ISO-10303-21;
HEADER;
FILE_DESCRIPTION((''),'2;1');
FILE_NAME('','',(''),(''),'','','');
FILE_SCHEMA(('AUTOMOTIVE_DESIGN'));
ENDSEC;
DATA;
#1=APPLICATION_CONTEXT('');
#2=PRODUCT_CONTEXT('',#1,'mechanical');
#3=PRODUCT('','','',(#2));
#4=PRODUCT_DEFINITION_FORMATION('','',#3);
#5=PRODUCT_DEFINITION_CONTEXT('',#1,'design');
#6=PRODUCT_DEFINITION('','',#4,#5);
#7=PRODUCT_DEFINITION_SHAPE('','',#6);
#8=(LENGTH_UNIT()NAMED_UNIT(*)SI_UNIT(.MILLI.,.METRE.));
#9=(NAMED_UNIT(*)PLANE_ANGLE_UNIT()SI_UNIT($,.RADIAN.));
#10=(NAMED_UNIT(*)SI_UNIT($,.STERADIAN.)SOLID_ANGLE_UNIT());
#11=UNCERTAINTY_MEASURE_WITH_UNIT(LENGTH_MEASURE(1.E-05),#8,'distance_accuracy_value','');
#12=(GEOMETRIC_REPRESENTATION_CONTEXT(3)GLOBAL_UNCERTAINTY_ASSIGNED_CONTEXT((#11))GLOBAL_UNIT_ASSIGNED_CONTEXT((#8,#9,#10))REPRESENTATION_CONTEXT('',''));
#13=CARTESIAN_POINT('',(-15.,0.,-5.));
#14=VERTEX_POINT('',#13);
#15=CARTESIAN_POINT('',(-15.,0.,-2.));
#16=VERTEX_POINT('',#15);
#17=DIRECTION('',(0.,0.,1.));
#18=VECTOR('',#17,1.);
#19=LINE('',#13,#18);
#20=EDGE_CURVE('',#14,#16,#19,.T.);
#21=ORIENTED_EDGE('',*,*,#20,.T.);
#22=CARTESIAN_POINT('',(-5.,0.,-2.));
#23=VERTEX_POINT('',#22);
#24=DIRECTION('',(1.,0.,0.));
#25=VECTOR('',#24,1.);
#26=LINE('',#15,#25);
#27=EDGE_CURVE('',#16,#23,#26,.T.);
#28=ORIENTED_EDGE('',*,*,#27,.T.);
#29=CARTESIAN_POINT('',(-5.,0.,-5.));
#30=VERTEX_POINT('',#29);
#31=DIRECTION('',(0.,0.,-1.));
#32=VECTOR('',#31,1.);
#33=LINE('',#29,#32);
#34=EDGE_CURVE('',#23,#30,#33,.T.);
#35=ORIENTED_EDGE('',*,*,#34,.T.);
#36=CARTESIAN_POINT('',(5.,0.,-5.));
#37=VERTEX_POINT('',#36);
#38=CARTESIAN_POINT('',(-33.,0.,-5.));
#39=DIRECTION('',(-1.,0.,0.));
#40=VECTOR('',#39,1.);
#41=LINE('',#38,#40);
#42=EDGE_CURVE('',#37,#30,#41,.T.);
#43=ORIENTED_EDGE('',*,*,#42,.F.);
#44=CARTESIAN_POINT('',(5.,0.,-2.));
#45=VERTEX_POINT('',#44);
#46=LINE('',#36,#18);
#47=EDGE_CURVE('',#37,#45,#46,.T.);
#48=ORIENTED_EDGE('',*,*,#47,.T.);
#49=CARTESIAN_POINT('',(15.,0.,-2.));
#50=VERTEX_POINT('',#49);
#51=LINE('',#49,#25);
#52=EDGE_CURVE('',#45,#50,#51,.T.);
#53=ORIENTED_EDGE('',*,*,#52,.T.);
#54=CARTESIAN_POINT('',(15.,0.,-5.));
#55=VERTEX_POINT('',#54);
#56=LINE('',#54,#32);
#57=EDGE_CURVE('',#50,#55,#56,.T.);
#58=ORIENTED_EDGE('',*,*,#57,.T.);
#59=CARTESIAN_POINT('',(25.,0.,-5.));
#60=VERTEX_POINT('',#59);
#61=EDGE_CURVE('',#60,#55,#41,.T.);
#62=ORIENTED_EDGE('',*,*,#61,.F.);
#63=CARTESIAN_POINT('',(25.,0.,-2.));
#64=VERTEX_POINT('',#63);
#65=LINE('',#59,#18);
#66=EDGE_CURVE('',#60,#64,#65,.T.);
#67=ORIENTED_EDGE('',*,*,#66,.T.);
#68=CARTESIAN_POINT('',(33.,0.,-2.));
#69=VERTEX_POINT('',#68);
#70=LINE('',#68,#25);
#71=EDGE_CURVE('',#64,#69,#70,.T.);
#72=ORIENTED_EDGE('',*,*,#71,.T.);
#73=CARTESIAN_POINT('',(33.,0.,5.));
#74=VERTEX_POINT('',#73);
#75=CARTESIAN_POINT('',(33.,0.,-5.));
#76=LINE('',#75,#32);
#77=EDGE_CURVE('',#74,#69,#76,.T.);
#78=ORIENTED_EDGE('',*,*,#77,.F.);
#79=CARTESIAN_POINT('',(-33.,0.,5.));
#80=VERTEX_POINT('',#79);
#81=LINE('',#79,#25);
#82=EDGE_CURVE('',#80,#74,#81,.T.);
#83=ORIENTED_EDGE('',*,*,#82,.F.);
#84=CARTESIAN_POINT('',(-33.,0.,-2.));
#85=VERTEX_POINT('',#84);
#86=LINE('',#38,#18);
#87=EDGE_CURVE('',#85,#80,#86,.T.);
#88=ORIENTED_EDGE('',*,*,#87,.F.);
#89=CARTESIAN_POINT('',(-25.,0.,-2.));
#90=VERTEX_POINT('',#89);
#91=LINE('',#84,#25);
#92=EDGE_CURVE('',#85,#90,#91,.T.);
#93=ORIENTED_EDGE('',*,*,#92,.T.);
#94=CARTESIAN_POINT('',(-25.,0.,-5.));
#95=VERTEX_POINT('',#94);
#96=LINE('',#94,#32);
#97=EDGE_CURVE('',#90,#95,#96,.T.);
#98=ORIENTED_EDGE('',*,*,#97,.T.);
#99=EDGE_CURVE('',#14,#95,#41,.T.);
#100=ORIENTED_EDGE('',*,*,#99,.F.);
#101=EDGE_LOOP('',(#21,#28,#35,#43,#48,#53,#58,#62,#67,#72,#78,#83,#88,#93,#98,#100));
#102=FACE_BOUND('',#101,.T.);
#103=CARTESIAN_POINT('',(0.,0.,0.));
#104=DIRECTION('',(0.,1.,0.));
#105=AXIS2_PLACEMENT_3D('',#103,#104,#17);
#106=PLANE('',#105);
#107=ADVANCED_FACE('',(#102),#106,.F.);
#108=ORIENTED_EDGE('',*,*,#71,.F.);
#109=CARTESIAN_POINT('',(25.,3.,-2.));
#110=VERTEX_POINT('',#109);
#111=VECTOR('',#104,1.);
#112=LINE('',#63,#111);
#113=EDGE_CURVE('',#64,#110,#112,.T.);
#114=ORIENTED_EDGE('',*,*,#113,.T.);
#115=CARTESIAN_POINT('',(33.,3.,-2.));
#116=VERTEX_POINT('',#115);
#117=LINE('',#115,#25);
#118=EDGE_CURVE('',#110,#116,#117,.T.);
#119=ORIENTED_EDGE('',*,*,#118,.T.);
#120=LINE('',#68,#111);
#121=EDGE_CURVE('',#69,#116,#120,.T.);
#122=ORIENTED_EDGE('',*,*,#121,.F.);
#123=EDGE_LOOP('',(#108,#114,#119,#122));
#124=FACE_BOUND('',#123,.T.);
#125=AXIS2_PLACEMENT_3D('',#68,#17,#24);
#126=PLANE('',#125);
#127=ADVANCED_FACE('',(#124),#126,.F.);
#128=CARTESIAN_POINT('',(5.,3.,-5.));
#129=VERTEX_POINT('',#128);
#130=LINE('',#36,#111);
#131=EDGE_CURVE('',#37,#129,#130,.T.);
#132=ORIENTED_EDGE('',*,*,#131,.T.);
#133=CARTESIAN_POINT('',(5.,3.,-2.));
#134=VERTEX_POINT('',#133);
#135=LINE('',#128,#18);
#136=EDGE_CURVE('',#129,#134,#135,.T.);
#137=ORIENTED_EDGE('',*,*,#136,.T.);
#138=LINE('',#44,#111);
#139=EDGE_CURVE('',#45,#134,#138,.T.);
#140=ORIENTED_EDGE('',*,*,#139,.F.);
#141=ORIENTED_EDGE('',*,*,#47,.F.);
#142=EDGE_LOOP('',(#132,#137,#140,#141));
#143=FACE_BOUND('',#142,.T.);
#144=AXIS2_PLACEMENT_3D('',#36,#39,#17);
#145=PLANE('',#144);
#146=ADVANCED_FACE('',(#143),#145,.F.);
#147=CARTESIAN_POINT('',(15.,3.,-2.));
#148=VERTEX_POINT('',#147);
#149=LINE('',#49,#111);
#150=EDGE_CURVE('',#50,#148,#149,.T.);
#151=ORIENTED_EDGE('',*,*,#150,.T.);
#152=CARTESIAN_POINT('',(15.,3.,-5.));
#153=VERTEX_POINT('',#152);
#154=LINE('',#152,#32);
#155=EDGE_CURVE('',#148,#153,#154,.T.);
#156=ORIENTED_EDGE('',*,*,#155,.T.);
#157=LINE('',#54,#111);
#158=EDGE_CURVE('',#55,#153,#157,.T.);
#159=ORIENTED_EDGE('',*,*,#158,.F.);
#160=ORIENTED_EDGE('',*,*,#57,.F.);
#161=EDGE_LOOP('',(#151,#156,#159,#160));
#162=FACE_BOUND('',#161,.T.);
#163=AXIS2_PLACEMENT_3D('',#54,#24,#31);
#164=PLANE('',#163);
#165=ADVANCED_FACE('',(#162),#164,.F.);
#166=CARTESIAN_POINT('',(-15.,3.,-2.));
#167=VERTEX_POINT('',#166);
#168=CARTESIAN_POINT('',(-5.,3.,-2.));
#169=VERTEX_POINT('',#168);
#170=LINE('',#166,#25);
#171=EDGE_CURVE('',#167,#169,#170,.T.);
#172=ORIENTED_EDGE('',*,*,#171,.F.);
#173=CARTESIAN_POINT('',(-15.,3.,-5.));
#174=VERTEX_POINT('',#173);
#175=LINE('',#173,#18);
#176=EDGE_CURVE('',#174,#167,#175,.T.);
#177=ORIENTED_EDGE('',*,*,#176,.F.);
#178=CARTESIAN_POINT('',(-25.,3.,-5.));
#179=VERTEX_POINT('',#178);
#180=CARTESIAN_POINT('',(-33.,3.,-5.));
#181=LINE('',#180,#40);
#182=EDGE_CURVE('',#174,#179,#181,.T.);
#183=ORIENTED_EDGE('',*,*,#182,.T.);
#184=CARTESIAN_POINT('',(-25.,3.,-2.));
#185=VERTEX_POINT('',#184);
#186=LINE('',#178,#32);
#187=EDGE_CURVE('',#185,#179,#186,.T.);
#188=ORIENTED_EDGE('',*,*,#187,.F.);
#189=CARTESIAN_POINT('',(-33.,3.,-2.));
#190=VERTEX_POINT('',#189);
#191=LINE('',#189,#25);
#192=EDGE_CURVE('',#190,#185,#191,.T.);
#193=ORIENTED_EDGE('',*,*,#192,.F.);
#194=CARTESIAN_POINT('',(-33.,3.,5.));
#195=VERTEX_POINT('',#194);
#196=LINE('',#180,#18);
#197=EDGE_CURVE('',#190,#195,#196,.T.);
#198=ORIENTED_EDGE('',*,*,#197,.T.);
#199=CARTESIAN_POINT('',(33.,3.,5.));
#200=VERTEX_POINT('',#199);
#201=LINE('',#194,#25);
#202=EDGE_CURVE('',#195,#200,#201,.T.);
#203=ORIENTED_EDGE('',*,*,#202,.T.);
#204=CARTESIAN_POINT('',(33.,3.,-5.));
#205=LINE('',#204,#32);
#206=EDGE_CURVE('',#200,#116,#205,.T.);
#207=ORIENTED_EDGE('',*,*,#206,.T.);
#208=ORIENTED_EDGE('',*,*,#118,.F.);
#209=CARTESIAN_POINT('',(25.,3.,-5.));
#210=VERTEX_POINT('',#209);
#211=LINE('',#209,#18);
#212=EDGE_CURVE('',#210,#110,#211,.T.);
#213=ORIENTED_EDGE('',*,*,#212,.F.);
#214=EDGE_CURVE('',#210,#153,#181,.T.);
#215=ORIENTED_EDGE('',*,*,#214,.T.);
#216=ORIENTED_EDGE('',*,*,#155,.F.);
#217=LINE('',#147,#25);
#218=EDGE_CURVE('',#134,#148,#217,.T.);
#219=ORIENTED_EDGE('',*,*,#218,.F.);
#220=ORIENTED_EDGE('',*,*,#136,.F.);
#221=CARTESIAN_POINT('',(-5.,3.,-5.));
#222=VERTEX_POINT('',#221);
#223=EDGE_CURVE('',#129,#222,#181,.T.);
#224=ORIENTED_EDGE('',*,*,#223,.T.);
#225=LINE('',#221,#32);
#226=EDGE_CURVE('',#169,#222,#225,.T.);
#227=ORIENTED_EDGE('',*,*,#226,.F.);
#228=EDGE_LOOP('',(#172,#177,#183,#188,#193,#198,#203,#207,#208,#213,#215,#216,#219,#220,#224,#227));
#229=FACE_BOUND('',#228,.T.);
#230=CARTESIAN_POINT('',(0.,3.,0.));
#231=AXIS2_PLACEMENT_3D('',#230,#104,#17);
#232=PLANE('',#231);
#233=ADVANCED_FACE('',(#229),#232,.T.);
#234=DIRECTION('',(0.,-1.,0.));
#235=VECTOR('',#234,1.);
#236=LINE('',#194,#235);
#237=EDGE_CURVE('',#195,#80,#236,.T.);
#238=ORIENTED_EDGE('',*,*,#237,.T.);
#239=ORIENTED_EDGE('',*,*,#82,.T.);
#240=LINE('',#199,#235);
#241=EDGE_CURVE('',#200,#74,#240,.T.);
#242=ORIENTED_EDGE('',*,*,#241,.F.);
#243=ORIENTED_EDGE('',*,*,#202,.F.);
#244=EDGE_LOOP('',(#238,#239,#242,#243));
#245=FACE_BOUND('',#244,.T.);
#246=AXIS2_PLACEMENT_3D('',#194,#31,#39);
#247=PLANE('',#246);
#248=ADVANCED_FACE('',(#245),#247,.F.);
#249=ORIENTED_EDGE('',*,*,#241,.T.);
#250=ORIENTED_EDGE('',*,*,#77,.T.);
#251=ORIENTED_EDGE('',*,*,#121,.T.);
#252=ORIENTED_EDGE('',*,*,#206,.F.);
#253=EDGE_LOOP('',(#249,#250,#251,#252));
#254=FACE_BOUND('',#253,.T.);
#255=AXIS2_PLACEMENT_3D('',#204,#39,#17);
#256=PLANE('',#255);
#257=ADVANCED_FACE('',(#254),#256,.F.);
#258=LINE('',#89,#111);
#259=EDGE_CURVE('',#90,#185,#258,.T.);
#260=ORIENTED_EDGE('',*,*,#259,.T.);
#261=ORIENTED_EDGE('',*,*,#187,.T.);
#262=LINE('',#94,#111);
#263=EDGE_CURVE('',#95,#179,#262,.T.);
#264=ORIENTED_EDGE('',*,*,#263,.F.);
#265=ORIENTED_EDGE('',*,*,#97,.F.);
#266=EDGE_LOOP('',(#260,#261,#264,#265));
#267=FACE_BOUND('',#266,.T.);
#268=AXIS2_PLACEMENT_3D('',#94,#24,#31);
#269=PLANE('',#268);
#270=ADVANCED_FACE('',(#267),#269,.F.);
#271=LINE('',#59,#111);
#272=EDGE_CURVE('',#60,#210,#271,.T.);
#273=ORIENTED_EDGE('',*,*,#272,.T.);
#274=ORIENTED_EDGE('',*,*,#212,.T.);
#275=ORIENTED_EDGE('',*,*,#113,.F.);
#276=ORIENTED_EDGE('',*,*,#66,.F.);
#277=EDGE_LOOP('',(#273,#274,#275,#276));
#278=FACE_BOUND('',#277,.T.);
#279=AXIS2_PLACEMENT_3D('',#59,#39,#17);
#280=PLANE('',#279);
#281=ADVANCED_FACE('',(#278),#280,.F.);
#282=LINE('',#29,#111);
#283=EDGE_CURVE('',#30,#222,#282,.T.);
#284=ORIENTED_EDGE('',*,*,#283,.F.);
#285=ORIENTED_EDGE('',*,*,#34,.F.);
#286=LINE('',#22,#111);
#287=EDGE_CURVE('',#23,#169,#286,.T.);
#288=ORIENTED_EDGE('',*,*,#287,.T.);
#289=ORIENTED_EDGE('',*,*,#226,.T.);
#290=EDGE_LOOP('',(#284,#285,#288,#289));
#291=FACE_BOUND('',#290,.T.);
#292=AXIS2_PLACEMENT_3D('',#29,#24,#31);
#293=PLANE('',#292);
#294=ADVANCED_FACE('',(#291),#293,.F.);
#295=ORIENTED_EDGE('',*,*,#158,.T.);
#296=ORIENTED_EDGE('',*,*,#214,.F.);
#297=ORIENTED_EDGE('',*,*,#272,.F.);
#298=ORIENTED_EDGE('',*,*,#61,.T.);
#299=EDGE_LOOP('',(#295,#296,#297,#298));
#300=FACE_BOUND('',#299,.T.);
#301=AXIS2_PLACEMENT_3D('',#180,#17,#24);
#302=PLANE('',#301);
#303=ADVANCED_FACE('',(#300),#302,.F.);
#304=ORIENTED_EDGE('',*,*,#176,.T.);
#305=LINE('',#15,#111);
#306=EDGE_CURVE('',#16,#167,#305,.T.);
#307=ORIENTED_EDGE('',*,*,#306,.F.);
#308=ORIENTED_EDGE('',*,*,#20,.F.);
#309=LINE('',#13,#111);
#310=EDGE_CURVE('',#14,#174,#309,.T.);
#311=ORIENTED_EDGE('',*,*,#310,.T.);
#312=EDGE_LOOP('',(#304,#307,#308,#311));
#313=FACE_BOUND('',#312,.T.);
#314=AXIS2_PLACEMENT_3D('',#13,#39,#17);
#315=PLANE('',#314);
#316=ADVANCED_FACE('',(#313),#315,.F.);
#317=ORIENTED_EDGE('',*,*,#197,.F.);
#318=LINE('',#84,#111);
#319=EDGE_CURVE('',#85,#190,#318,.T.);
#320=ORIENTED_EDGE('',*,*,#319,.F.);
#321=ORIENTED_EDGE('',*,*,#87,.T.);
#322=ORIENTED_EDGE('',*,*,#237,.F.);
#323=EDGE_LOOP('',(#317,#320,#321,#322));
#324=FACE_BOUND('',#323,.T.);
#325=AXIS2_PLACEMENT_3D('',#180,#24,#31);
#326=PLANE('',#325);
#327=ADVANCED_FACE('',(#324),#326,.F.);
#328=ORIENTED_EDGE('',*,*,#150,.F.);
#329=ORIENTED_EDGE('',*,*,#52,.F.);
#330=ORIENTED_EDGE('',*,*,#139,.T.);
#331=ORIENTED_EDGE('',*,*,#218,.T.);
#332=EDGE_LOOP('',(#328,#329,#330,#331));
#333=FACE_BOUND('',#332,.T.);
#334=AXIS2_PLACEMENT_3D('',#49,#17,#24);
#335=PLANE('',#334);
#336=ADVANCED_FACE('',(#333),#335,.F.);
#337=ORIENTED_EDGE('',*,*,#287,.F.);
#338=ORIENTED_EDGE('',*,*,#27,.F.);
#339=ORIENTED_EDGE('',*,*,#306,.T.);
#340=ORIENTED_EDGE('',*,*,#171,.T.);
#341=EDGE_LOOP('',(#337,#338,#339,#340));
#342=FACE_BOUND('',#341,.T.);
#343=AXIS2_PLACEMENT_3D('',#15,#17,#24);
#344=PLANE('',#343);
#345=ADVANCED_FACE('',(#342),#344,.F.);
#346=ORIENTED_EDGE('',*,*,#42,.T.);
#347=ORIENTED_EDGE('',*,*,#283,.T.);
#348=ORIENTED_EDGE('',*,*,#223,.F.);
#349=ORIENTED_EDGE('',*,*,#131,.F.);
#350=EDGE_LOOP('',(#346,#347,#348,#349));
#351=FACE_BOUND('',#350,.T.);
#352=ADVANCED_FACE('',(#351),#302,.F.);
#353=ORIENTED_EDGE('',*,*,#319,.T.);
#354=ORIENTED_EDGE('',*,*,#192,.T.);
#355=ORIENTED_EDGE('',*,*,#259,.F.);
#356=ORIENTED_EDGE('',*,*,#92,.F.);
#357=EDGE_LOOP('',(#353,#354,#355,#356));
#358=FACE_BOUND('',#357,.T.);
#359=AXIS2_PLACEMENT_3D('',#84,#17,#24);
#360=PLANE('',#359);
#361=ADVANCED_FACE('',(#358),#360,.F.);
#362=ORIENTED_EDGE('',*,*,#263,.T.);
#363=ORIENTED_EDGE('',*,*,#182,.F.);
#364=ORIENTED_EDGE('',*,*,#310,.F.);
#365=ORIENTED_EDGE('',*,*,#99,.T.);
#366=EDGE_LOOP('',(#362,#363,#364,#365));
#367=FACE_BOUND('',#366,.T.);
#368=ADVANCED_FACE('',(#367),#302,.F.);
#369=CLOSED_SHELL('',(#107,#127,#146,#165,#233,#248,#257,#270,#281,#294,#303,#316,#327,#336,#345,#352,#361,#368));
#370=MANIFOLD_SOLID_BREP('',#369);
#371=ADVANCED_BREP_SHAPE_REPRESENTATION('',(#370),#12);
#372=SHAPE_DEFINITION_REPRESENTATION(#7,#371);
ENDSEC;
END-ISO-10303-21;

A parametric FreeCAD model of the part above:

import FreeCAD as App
import Part
import Sketcher
Q = App.Units.Quantity


def add_polygon(sketch, points):
    """Adds a closed chain of lines whose ends are joined by coincident constraints."""
    first, n = sketch.GeometryCount, len(points)
    for a, b in zip(points, points[1:] + points[:1]):
        sketch.addGeometry(Part.LineSegment(App.Vector(*a, 0), App.Vector(*b, 0)), False)
    for i in range(n):
        sketch.addConstraint(Sketcher.Constraint("Coincident", first + i, 2, first + (i + 1) % n, 1))

doc = App.newDocument("Part")
params = doc.addObject("Spreadsheet::Sheet", "Params")
for row, (alias, value) in enumerate([
    ("sketch1_width", "66 mm"),
    ("sketch1_height", "10 mm"),
    ("pad1_length", "3 mm"),
    ("sketch2_width", "10 mm"),
    ("sketch2_width2", "8 mm"),
    ("sketch2_height", "3 mm"),
    ("pocket1_length", "3 mm"),
], start=1):
    params.set(f"A{row}", alias)
    params.set(f"B{row}", "=" + value)
    params.setAlias(f"B{row}", alias)

body = doc.addObject("PartDesign::Body", "Body")

sketch1 = body.newObject("Sketcher::SketchObject", "Sketch")
sketch1.AttachmentSupport = (doc.getObject("XZ_Plane"), [""])
sketch1.MapMode = "FlatFace"
add_polygon(sketch1, [(-33, -5), (-33, 5), (33, 5), (33, -5)])
sketch1.addConstraint([
    Sketcher.Constraint("Vertical", 0),
    Sketcher.Constraint("Horizontal", 1),
    Sketcher.Constraint("Vertical", 2),
    Sketcher.Constraint("Horizontal", 3),
    Sketcher.Constraint("Symmetric", 0, 2, 2, 2, -1, 1),
    Sketcher.Constraint("DistanceX", 1, 1, 1, 2, Q("66 mm")),
    Sketcher.Constraint("DistanceY", 0, 1, 0, 2, Q("10 mm")),
])
sketch1.setExpression("Constraints[9]", "Params.sketch1_width")
sketch1.setExpression("Constraints[10]", "Params.sketch1_height")
pad1 = body.newObject("PartDesign::Pad", "Pad")
pad1.Profile = sketch1
pad1.setExpression("Length", "Params.pad1_length")
pad1.Reversed = True

sketch2 = body.newObject("Sketcher::SketchObject", "Sketch001")
sketch2.AttachmentSupport = (doc.getObject("XZ_Plane"), [""])
sketch2.MapMode = "FlatFace"
sketch2.AttachmentOffset = App.Placement(App.Vector(0, 0, -3), App.Rotation())
add_polygon(sketch2, [(5, -5), (5, -2), (15, -2), (15, -5)])
add_polygon(sketch2, [(-33, -5), (-33, -2), (-25, -2), (-25, -5)])
add_polygon(sketch2, [(-15, -5), (-15, -2), (-5, -2), (-5, -5)])
add_polygon(sketch2, [(25, -5), (25, -2), (33, -2), (33, -5)])
sketch2.addConstraint([
    Sketcher.Constraint("Vertical", 0),
    Sketcher.Constraint("Horizontal", 1),
    Sketcher.Constraint("Vertical", 2),
    Sketcher.Constraint("Horizontal", 3),
    Sketcher.Constraint("Vertical", 4),
    Sketcher.Constraint("Horizontal", 5),
    Sketcher.Constraint("Vertical", 6),
    Sketcher.Constraint("Horizontal", 7),
    Sketcher.Constraint("Vertical", 8),
    Sketcher.Constraint("Horizontal", 9),
    Sketcher.Constraint("Vertical", 10),
    Sketcher.Constraint("Horizontal", 11),
    Sketcher.Constraint("Vertical", 12),
    Sketcher.Constraint("Horizontal", 13),
    Sketcher.Constraint("Vertical", 14),
    Sketcher.Constraint("Horizontal", 15),
    Sketcher.Constraint("Symmetric", 1, 2, 8, 2, -2),
    Sketcher.Constraint("Symmetric", 3, 2, 10, 2, -2),
    Sketcher.Constraint("Symmetric", 5, 2, 12, 2, -2),
    Sketcher.Constraint("Symmetric", 7, 2, 14, 2, -2),
    Sketcher.Constraint("Horizontal", 1, 2, 4, 2),
    Sketcher.Constraint("Horizontal", 3, 2, 6, 2),
    Sketcher.Constraint("DistanceX", 1, 1, 1, 2, Q("10 mm")),
    Sketcher.Constraint("DistanceX", 5, 1, 5, 2, Q("8 mm")),
    Sketcher.Constraint("DistanceY", 0, 1, 0, 2, Q("3 mm")),
    Sketcher.Constraint("DistanceX", -1, 1, 0, 2, Q("5 mm")),
    Sketcher.Constraint("DistanceY", 0, 2, -1, 1, Q("2 mm")),
    Sketcher.Constraint("DistanceX", 4, 2, -1, 1, Q("33 mm")),
])
sketch2.setExpression("Constraints[38]", "Params.sketch2_width")
sketch2.setExpression("Constraints[39]", "Params.sketch2_width2")
sketch2.setExpression("Constraints[40]", "Params.sketch2_height")
pocket1 = body.newObject("PartDesign::Pocket", "Pocket")
pocket1.Profile = sketch2
pocket1.setExpression("Length", "Params.pocket1_length")
pocket1.Reversed = True

doc.recompute()
